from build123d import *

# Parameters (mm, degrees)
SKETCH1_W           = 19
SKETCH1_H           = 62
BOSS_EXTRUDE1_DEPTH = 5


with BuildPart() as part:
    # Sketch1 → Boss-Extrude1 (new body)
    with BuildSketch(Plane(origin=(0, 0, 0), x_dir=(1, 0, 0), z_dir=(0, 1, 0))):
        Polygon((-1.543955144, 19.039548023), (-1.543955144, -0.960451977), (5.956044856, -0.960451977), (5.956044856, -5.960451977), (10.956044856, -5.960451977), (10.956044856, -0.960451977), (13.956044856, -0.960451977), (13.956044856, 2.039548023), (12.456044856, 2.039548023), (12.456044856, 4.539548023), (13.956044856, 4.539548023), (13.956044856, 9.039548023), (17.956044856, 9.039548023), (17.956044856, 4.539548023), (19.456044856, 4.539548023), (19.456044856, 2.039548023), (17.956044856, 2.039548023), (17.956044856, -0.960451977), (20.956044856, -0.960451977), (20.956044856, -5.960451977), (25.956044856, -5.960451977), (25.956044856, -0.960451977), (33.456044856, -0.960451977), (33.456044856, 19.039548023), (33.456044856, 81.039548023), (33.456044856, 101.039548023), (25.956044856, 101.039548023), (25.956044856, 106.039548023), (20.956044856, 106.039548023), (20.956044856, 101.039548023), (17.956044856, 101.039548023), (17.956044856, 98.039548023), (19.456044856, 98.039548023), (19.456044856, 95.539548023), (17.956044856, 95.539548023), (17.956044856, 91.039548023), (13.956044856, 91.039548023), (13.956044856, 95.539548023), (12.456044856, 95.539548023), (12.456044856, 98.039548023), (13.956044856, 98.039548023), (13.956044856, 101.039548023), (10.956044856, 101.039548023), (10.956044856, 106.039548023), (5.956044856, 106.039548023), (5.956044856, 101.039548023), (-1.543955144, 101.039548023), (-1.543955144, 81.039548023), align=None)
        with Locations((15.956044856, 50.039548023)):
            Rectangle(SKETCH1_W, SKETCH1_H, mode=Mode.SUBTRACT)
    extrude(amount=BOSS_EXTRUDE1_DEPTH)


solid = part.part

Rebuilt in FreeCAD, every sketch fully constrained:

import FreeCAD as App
import Part
import Sketcher
from FreeCAD import Vector
Q = App.Units.Quantity

doc = App.newDocument("Part")
body = doc.addObject("PartDesign::Body", "Body")

sketch1 = doc.addObject("Sketcher::SketchObject", "Sketch")
body.addObject(sketch1)
sketch1.AttachmentSupport = (doc.XZ_Plane, [""])
sketch1.MapMode = "FlatFace"
sketch1.addGeometry(Part.LineSegment(Vector(-1.5, 1, 0), Vector(6, 1, 0)), False)
sketch1.addGeometry(Part.LineSegment(Vector(6, 1, 0), Vector(6, 6, 0)), False)
sketch1.addGeometry(Part.LineSegment(Vector(6, 6, 0), Vector(11, 6, 0)), False)
sketch1.addGeometry(Part.LineSegment(Vector(11, 6, 0), Vector(11, 1, 0)), False)
sketch1.addGeometry(Part.LineSegment(Vector(11, 1, 0), Vector(14, 1, 0)), False)
sketch1.addGeometry(Part.LineSegment(Vector(14, 1, 0), Vector(14, -2, 0)), False)
sketch1.addGeometry(Part.LineSegment(Vector(14, -2, 0), Vector(12.5, -2, 0)), False)
sketch1.addGeometry(Part.LineSegment(Vector(12.5, -2, 0), Vector(12.5, -4.5, 0)), False)
sketch1.addGeometry(Part.LineSegment(Vector(12.5, -4.5, 0), Vector(14, -4.5, 0)), False)
sketch1.addGeometry(Part.LineSegment(Vector(14, -4.5, 0), Vector(14, -9, 0)), False)
sketch1.addGeometry(Part.LineSegment(Vector(14, -9, 0), Vector(18, -9, 0)), False)
sketch1.addGeometry(Part.LineSegment(Vector(18, -9, 0), Vector(18, -4.5, 0)), False)
sketch1.addGeometry(Part.LineSegment(Vector(18, -4.5, 0), Vector(19.5, -4.5, 0)), False)
sketch1.addGeometry(Part.LineSegment(Vector(19.5, -4.5, 0), Vector(19.5, -2, 0)), False)
sketch1.addGeometry(Part.LineSegment(Vector(19.5, -2, 0), Vector(18, -2, 0)), False)
sketch1.addGeometry(Part.LineSegment(Vector(18, -2, 0), Vector(18, 1, 0)), False)
sketch1.addGeometry(Part.LineSegment(Vector(18, 1, 0), Vector(21, 1, 0)), False)
sketch1.addGeometry(Part.LineSegment(Vector(21, 1, 0), Vector(21, 6, 0)), False)
sketch1.addGeometry(Part.LineSegment(Vector(21, 6, 0), Vector(26, 6, 0)), False)
sketch1.addGeometry(Part.LineSegment(Vector(26, 6, 0), Vector(26, 1, 0)), False)
sketch1.addGeometry(Part.LineSegment(Vector(26, 1, 0), Vector(33.5, 1, 0)), False)
sketch1.addGeometry(Part.LineSegment(Vector(33.5, 1, 0), Vector(33.5, -101, 0)), False)
sketch1.addGeometry(Part.LineSegment(Vector(33.5, -101, 0), Vector(26, -101, 0)), False)
sketch1.addGeometry(Part.LineSegment(Vector(26, -101, 0), Vector(26, -106, 0)), False)
sketch1.addGeometry(Part.LineSegment(Vector(26, -106, 0), Vector(21, -106, 0)), False)
sketch1.addGeometry(Part.LineSegment(Vector(21, -106, 0), Vector(21, -101, 0)), False)
sketch1.addGeometry(Part.LineSegment(Vector(21, -101, 0), Vector(18, -101, 0)), False)
sketch1.addGeometry(Part.LineSegment(Vector(18, -101, 0), Vector(18, -98, 0)), False)
sketch1.addGeometry(Part.LineSegment(Vector(18, -98, 0), Vector(19.5, -98, 0)), False)
sketch1.addGeometry(Part.LineSegment(Vector(19.5, -98, 0), Vector(19.5, -95.5, 0)), False)
sketch1.addGeometry(Part.LineSegment(Vector(19.5, -95.5, 0), Vector(18, -95.5, 0)), False)
sketch1.addGeometry(Part.LineSegment(Vector(18, -95.5, 0), Vector(18, -91, 0)), False)
sketch1.addGeometry(Part.LineSegment(Vector(18, -91, 0), Vector(14, -91, 0)), False)
sketch1.addGeometry(Part.LineSegment(Vector(14, -91, 0), Vector(14, -95.5, 0)), False)
sketch1.addGeometry(Part.LineSegment(Vector(14, -95.5, 0), Vector(12.5, -95.5, 0)), False)
sketch1.addGeometry(Part.LineSegment(Vector(12.5, -95.5, 0), Vector(12.5, -98, 0)), False)
sketch1.addGeometry(Part.LineSegment(Vector(12.5, -98, 0), Vector(14, -98, 0)), False)
sketch1.addGeometry(Part.LineSegment(Vector(14, -98, 0), Vector(14, -101, 0)), False)
sketch1.addGeometry(Part.LineSegment(Vector(14, -101, 0), Vector(11, -101, 0)), False)
sketch1.addGeometry(Part.LineSegment(Vector(11, -101, 0), Vector(11, -106, 0)), False)
sketch1.addGeometry(Part.LineSegment(Vector(11, -106, 0), Vector(6, -106, 0)), False)
sketch1.addGeometry(Part.LineSegment(Vector(6, -106, 0), Vector(6, -101, 0)), False)
sketch1.addGeometry(Part.LineSegment(Vector(6, -101, 0), Vector(-1.5, -101, 0)), False)
sketch1.addGeometry(Part.LineSegment(Vector(-1.5, -101, 0), Vector(-1.5, 1, 0)), False)
sketch1.addGeometry(Part.LineSegment(Vector(25.5, -19, 0), Vector(6.5, -19, 0)), False)
sketch1.addGeometry(Part.LineSegment(Vector(6.5, -19, 0), Vector(6.5, -81, 0)), False)
sketch1.addGeometry(Part.LineSegment(Vector(6.5, -81, 0), Vector(25.5, -81, 0)), False)
sketch1.addGeometry(Part.LineSegment(Vector(25.5, -81, 0), Vector(25.5, -19, 0)), False)
sketch1.addConstraint(Sketcher.Constraint("Coincident", 0, 2, 1, 1))
sketch1.addConstraint(Sketcher.Constraint("Coincident", 1, 2, 2, 1))
sketch1.addConstraint(Sketcher.Constraint("Coincident", 2, 2, 3, 1))
sketch1.addConstraint(Sketcher.Constraint("Coincident", 3, 2, 4, 1))
sketch1.addConstraint(Sketcher.Constraint("Coincident", 4, 2, 5, 1))
sketch1.addConstraint(Sketcher.Constraint("Coincident", 5, 2, 6, 1))
sketch1.addConstraint(Sketcher.Constraint("Coincident", 6, 2, 7, 1))
sketch1.addConstraint(Sketcher.Constraint("Coincident", 7, 2, 8, 1))
sketch1.addConstraint(Sketcher.Constraint("Coincident", 8, 2, 9, 1))
sketch1.addConstraint(Sketcher.Constraint("Coincident", 9, 2, 10, 1))
sketch1.addConstraint(Sketcher.Constraint("Coincident", 10, 2, 11, 1))
sketch1.addConstraint(Sketcher.Constraint("Coincident", 11, 2, 12, 1))
sketch1.addConstraint(Sketcher.Constraint("Coincident", 12, 2, 13, 1))
sketch1.addConstraint(Sketcher.Constraint("Coincident", 13, 2, 14, 1))
sketch1.addConstraint(Sketcher.Constraint("Coincident", 14, 2, 15, 1))
sketch1.addConstraint(Sketcher.Constraint("Coincident", 15, 2, 16, 1))
sketch1.addConstraint(Sketcher.Constraint("Coincident", 16, 2, 17, 1))
sketch1.addConstraint(Sketcher.Constraint("Coincident", 17, 2, 18, 1))
sketch1.addConstraint(Sketcher.Constraint("Coincident", 18, 2, 19, 1))
sketch1.addConstraint(Sketcher.Constraint("Coincident", 19, 2, 20, 1))
sketch1.addConstraint(Sketcher.Constraint("Coincident", 20, 2, 21, 1))
sketch1.addConstraint(Sketcher.Constraint("Coincident", 21, 2, 22, 1))
sketch1.addConstraint(Sketcher.Constraint("Coincident", 22, 2, 23, 1))
sketch1.addConstraint(Sketcher.Constraint("Coincident", 23, 2, 24, 1))
sketch1.addConstraint(Sketcher.Constraint("Coincident", 24, 2, 25, 1))
sketch1.addConstraint(Sketcher.Constraint("Coincident", 25, 2, 26, 1))
sketch1.addConstraint(Sketcher.Constraint("Coincident", 26, 2, 27, 1))
sketch1.addConstraint(Sketcher.Constraint("Coincident", 27, 2, 28, 1))
sketch1.addConstraint(Sketcher.Constraint("Coincident", 28, 2, 29, 1))
sketch1.addConstraint(Sketcher.Constraint("Coincident", 29, 2, 30, 1))
sketch1.addConstraint(Sketcher.Constraint("Coincident", 30, 2, 31, 1))
sketch1.addConstraint(Sketcher.Constraint("Coincident", 31, 2, 32, 1))
sketch1.addConstraint(Sketcher.Constraint("Coincident", 32, 2, 33, 1))
sketch1.addConstraint(Sketcher.Constraint("Coincident", 33, 2, 34, 1))
sketch1.addConstraint(Sketcher.Constraint("Coincident", 34, 2, 35, 1))
sketch1.addConstraint(Sketcher.Constraint("Coincident", 35, 2, 36, 1))
sketch1.addConstraint(Sketcher.Constraint("Coincident", 36, 2, 37, 1))
sketch1.addConstraint(Sketcher.Constraint("Coincident", 37, 2, 38, 1))
sketch1.addConstraint(Sketcher.Constraint("Coincident", 38, 2, 39, 1))
sketch1.addConstraint(Sketcher.Constraint("Coincident", 39, 2, 40, 1))
sketch1.addConstraint(Sketcher.Constraint("Coincident", 40, 2, 41, 1))
sketch1.addConstraint(Sketcher.Constraint("Coincident", 41, 2, 42, 1))
sketch1.addConstraint(Sketcher.Constraint("Coincident", 42, 2, 43, 1))
sketch1.addConstraint(Sketcher.Constraint("Coincident", 43, 2, 0, 1))
sketch1.addConstraint(Sketcher.Constraint("Coincident", 44, 2, 45, 1))
sketch1.addConstraint(Sketcher.Constraint("Coincident", 45, 2, 46, 1))
sketch1.addConstraint(Sketcher.Constraint("Coincident", 46, 2, 47, 1))
sketch1.addConstraint(Sketcher.Constraint("Coincident", 47, 2, 44, 1))
sketch1.addConstraint(Sketcher.Constraint("Horizontal", 0))
sketch1.addConstraint(Sketcher.Constraint("Vertical", 1))
sketch1.addConstraint(Sketcher.Constraint("Horizontal", 2))
sketch1.addConstraint(Sketcher.Constraint("Vertical", 3))
sketch1.addConstraint(Sketcher.Constraint("Horizontal", 4))
sketch1.addConstraint(Sketcher.Constraint("Vertical", 5))
sketch1.addConstraint(Sketcher.Constraint("Horizontal", 6))
sketch1.addConstraint(Sketcher.Constraint("Vertical", 7))
sketch1.addConstraint(Sketcher.Constraint("Horizontal", 8))
sketch1.addConstraint(Sketcher.Constraint("Vertical", 9))
sketch1.addConstraint(Sketcher.Constraint("Horizontal", 10))
sketch1.addConstraint(Sketcher.Constraint("Vertical", 11))
sketch1.addConstraint(Sketcher.Constraint("Horizontal", 12))
sketch1.addConstraint(Sketcher.Constraint("Vertical", 13))
sketch1.addConstraint(Sketcher.Constraint("Horizontal", 14))
sketch1.addConstraint(Sketcher.Constraint("Vertical", 15))
sketch1.addConstraint(Sketcher.Constraint("Horizontal", 16))
sketch1.addConstraint(Sketcher.Constraint("Vertical", 17))
sketch1.addConstraint(Sketcher.Constraint("Horizontal", 18))
sketch1.addConstraint(Sketcher.Constraint("Vertical", 19))
sketch1.addConstraint(Sketcher.Constraint("Horizontal", 20))
sketch1.addConstraint(Sketcher.Constraint("Vertical", 21))
sketch1.addConstraint(Sketcher.Constraint("Horizontal", 22))
sketch1.addConstraint(Sketcher.Constraint("Vertical", 23))
sketch1.addConstraint(Sketcher.Constraint("Horizontal", 24))
sketch1.addConstraint(Sketcher.Constraint("Vertical", 25))
sketch1.addConstraint(Sketcher.Constraint("Horizontal", 26))
sketch1.addConstraint(Sketcher.Constraint("Vertical", 27))
sketch1.addConstraint(Sketcher.Constraint("Horizontal", 28))
sketch1.addConstraint(Sketcher.Constraint("Vertical", 29))
sketch1.addConstraint(Sketcher.Constraint("Horizontal", 30))
sketch1.addConstraint(Sketcher.Constraint("Vertical", 31))
sketch1.addConstraint(Sketcher.Constraint("Horizontal", 32))
sketch1.addConstraint(Sketcher.Constraint("Vertical", 33))
sketch1.addConstraint(Sketcher.Constraint("Horizontal", 34))
sketch1.addConstraint(Sketcher.Constraint("Vertical", 35))
sketch1.addConstraint(Sketcher.Constraint("Horizontal", 36))
sketch1.addConstraint(Sketcher.Constraint("Vertical", 37))
sketch1.addConstraint(Sketcher.Constraint("Horizontal", 38))
sketch1.addConstraint(Sketcher.Constraint("Vertical", 39))
sketch1.addConstraint(Sketcher.Constraint("Horizontal", 40))
sketch1.addConstraint(Sketcher.Constraint("Vertical", 41))
sketch1.addConstraint(Sketcher.Constraint("Horizontal", 42))
sketch1.addConstraint(Sketcher.Constraint("Vertical", 43))
sketch1.addConstraint(Sketcher.Constraint("Horizontal", 44))
sketch1.addConstraint(Sketcher.Constraint("Vertical", 45))
sketch1.addConstraint(Sketcher.Constraint("Horizontal", 46))
sketch1.addConstraint(Sketcher.Constraint("Vertical", 47))
sketch1.addConstraint(Sketcher.Constraint("Horizontal", 0, 2, 3, 2))
sketch1.addConstraint(Sketcher.Constraint("Horizontal", 8, 2, 11, 2))
sketch1.addConstraint(Sketcher.Constraint("Horizontal", 6, 2, 13, 2))
sketch1.addConstraint(Sketcher.Constraint("Horizontal", 4, 2, 15, 2))
sketch1.addConstraint(Sketcher.Constraint("Horizontal", 2, 2, 17, 2))
sketch1.addConstraint(Sketcher.Constraint("Horizontal", 16, 2, 19, 2))
sketch1.addConstraint(Sketcher.Constraint("Horizontal", 22, 2, 25, 2))
sketch1.addConstraint(Sketcher.Constraint("Horizontal", 30, 2, 33, 2))
sketch1.addConstraint(Sketcher.Constraint("Horizontal", 28, 2, 35, 2))
sketch1.addConstraint(Sketcher.Constraint("Horizontal", 26, 2, 37, 2))
sketch1.addConstraint(Sketcher.Constraint("Horizontal", 24, 2, 39, 2))
sketch1.addConstraint(Sketcher.Constraint("Horizontal", 38, 2, 41, 2))
sketch1.addConstraint(Sketcher.Constraint("Vertical", 5, 2, 8, 2))
sketch1.addConstraint(Sketcher.Constraint("Vertical", 11, 2, 14, 2))
sketch1.addConstraint(Sketcher.Constraint("Vertical", 19, 2, 22, 2))
sketch1.addConstraint(Sketcher.Constraint("Vertical", 17, 2, 24, 2))
sketch1.addConstraint(Sketcher.Constraint("Vertical", 15, 2, 26, 2))
sketch1.addConstraint(Sketcher.Constraint("Vertical", 13, 2, 28, 2))
sketch1.addConstraint(Sketcher.Constraint("Vertical", 27, 2, 30, 2))
sketch1.addConstraint(Sketcher.Constraint("Vertical", 9, 2, 32, 2))
sketch1.addConstraint(Sketcher.Constraint("Vertical", 7, 2, 34, 2))
sketch1.addConstraint(Sketcher.Constraint("Vertical", 33, 2, 36, 2))
sketch1.addConstraint(Sketcher.Constraint("Vertical", 3, 2, 38, 2))
sketch1.addConstraint(Sketcher.Constraint("Vertical", 1, 2, 40, 2))
sketch1.addConstraint(Sketcher.Constraint("Equal", 8, 12))
sketch1.addConstraint(Sketcher.Constraint("Equal", 4, 16))
sketch1.addConstraint(Sketcher.Constraint("Equal", 2, 18))
sketch1.addConstraint(Sketcher.Constraint("Equal", 0, 20))
sketch1.addConstraint(Sketcher.Constraint("Equal", 40, 1))
sketch1.addConstraint(Sketcher.Constraint("Equal", 38, 5))
sketch1.addConstraint(Sketcher.Constraint("Equal", 19, 23))
sketch1.addConstraint(Sketcher.Constraint("Equal", 15, 27))
sketch1.addConstraint(Sketcher.Constraint("Equal", 13, 29))
sketch1.addConstraint(Sketcher.Constraint("Equal", 11, 31))
sketch1.addConstraint(Sketcher.Constraint("DistanceX", 2, 1, 2, 2, Q("5 mm")))
sketch1.addConstraint(Sketcher.Constraint("DistanceX", 4, 1, 4, 2, Q("3 mm")))
sketch1.addConstraint(Sketcher.Constraint("DistanceX", 10, 1, 10, 2, Q("4 mm")))
sketch1.addConstraint(Sketcher.Constraint("DistanceX", 44, 2, 44, 1, Q("19 mm")))
sketch1.addConstraint(Sketcher.Constraint("DistanceY", 21, 2, 21, 1, Q("102 mm")))
sketch1.addConstraint(Sketcher.Constraint("DistanceY", 45, 2, 45, 1, Q("62 mm")))
sketch1.addConstraint(Sketcher.Constraint("DistanceX", 0, 1, 0, 2, Q("7.5 mm")))
sketch1.addConstraint(Sketcher.Constraint("DistanceX", 6, 2, 6, 1, Q("1.5 mm")))
sketch1.addConstraint(Sketcher.Constraint("DistanceY", 7, 2, 7, 1, Q("2.5 mm")))
sketch1.addConstraint(Sketcher.Constraint("DistanceY", 9, 2, 9, 1, Q("4.5 mm")))
sketch1.addConstraint(Sketcher.Constraint("DistanceY", 44, 2, 9, 2, Q("10 mm")))
sketch1.addConstraint(Sketcher.Constraint("DistanceX", 44, 2, 7, 2, Q("6 mm")))
sketch1.addConstraint(Sketcher.Constraint("DistanceY", -1, 1, 0, 2, Q("0.960452 mm")))
sketch1.addConstraint(Sketcher.Constraint("DistanceX", -1, 1, 0, 2, Q("5.956045 mm")))
pad1 = doc.addObject("PartDesign::Pad", "Pad")
body.addObject(pad1)
pad1.Profile = sketch1
pad1.Length = 5
pad1.Reversed = True

doc.recompute()
